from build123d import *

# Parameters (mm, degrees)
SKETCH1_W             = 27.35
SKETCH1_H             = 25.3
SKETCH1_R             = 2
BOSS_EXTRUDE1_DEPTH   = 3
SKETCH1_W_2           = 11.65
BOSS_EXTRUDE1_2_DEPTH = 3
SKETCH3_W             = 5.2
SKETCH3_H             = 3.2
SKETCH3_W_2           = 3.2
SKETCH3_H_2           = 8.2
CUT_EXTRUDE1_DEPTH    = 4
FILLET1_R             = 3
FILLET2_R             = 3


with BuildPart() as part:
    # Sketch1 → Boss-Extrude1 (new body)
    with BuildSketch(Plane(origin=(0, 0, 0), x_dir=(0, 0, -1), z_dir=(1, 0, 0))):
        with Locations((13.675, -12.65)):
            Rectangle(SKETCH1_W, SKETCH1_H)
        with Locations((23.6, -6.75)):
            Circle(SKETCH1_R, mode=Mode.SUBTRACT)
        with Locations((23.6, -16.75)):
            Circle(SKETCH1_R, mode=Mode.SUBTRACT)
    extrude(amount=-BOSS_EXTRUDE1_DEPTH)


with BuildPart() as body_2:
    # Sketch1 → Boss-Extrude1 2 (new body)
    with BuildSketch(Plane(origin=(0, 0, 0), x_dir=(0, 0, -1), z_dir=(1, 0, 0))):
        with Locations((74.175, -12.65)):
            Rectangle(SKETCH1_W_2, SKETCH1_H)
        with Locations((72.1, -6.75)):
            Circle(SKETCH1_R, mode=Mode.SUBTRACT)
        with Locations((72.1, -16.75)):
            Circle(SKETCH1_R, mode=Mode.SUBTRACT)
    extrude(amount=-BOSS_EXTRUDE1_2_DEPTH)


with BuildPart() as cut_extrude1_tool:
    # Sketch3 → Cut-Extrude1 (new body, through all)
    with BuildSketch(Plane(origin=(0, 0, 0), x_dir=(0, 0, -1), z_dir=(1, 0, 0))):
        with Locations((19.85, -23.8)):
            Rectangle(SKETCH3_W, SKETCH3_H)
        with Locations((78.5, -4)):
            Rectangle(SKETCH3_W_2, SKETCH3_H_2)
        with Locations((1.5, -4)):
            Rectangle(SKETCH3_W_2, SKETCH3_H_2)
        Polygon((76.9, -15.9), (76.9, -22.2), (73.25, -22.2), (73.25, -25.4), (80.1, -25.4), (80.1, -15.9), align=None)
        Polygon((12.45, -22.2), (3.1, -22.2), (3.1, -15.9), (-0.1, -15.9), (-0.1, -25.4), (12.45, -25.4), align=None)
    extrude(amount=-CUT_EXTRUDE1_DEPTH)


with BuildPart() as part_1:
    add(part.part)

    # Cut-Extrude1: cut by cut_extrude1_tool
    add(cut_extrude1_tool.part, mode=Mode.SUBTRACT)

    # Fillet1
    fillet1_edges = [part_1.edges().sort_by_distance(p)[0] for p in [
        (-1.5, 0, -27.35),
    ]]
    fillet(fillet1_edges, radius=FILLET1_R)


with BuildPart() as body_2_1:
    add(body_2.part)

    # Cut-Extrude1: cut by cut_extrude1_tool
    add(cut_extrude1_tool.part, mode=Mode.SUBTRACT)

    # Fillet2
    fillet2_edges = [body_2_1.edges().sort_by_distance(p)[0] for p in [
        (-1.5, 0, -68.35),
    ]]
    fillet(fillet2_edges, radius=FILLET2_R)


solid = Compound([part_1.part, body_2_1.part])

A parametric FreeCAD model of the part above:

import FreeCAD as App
import Part
import Sketcher

V = App.Vector
Q = App.Units.Quantity


def edges_at(feature, points):
    """Names of the edges that pass closest to the given points."""
    edges = feature.Shape.Edges
    near = lambda p: min(range(len(edges)), key=lambda i: edges[i].distToShape(Part.Vertex(*p))[0])
    return sorted({f"Edge{near(p) + 1}" for p in points})

doc = App.newDocument("Part")
body = doc.addObject("PartDesign::Body", "Body")

# Sketch on YZ plane
sketch1 = body.newObject("Sketcher::SketchObject", "Sketch")
sketch1.AttachmentSupport = (doc.getObject("YZ_Plane"), [""])
sketch1.MapMode = "FlatFace"
sketch1.addGeometry([
    Part.LineSegment(V(0, 0, 0), V(-25.3, 0, 0)),  # 0
    Part.LineSegment(V(-25.3, 0, 0), V(-25.3, -27.35, 0)),  # 1
    Part.LineSegment(V(-25.3, -27.35, 0), V(0, -27.35, 0)),  # 2
    Part.LineSegment(V(0, -27.35, 0), V(0, 0, 0)),  # 3
    Part.Circle(V(-16.75, -23.6, 0), V(0, 0, 1), 2),  # 4
    Part.Circle(V(-6.75, -23.6, 0), V(0, 0, 1), 2),  # 5
], False)
sketch1.addConstraint([
    Sketcher.Constraint("Coincident", 0, 2, 1, 1),
    Sketcher.Constraint("Coincident", 1, 2, 2, 1),
    Sketcher.Constraint("Coincident", 2, 2, 3, 1),
    Sketcher.Constraint("Coincident", 3, 2, 0, 1),
    Sketcher.Constraint("Horizontal", 0),
    Sketcher.Constraint("Vertical", 1),
    Sketcher.Constraint("Horizontal", 2),
    Sketcher.Constraint("Vertical", 3),
    Sketcher.Constraint("Coincident", 3, 2, -1, 1),
    Sketcher.Constraint("Equal", 4, 5),
    Sketcher.Constraint("Horizontal", 4, 3, 5, 3),
    Sketcher.Constraint("Diameter", 4, Q("4 mm")),
    Sketcher.Constraint("DistanceX", 0, 2, 0, 1, Q("25.3 mm")),
    Sketcher.Constraint("DistanceX", 4, 3, 5, 3, Q("10 mm")),
    Sketcher.Constraint("DistanceY", 1, 2, 1, 1, Q("27.35 mm")),
    Sketcher.Constraint("DistanceY", 4, 3, -1, 1, Q("23.6 mm")),
    Sketcher.Constraint("DistanceX", 4, 3, -1, 1, Q("16.75 mm")),
])
pad1 = body.newObject("PartDesign::Pad", "Pad")
pad1.Profile = sketch1
pad1.Length = 3
pad1.Reversed = True
body2 = doc.addObject("PartDesign::Body", "Body001")

# Sketch on YZ plane
sketch2 = body2.newObject("Sketcher::SketchObject", "Sketch001")
sketch2.AttachmentSupport = (doc.getObject("YZ_Plane001"), [""])
sketch2.MapMode = "FlatFace"
sketch2.addGeometry([
    Part.LineSegment(V(0, -68.35, 0), V(-25.3, -68.35, 0)),  # 0
    Part.LineSegment(V(-25.3, -68.35, 0), V(-25.3, -80, 0)),  # 1
    Part.LineSegment(V(-25.3, -80, 0), V(0, -80, 0)),  # 2
    Part.LineSegment(V(0, -80, 0), V(0, -68.35, 0)),  # 3
    Part.Circle(V(-16.75, -72.1, 0), V(0, 0, 1), 2),  # 4
    Part.Circle(V(-6.75, -72.1, 0), V(0, 0, 1), 2),  # 5
], False)
sketch2.addConstraint([
    Sketcher.Constraint("Coincident", 0, 2, 1, 1),
    Sketcher.Constraint("Coincident", 1, 2, 2, 1),
    Sketcher.Constraint("Coincident", 2, 2, 3, 1),
    Sketcher.Constraint("Coincident", 3, 2, 0, 1),
    Sketcher.Constraint("Horizontal", 0),
    Sketcher.Constraint("Vertical", 1),
    Sketcher.Constraint("Horizontal", 2),
    Sketcher.Constraint("Vertical", 3),
    Sketcher.Constraint("Equal", 4, 5),
    Sketcher.Constraint("PointOnObject", 2, 2, -2),
    Sketcher.Constraint("Horizontal", 4, 3, 5, 3),
    Sketcher.Constraint("Diameter", 4, Q("4 mm")),
    Sketcher.Constraint("DistanceX", 0, 2, 0, 1, Q("25.3 mm")),
    Sketcher.Constraint("DistanceY", 1, 2, -1, 1, Q("80 mm")),
    Sketcher.Constraint("DistanceX", 4, 3, 5, 3, Q("10 mm")),
    Sketcher.Constraint("DistanceY", 1, 2, 1, 1, Q("11.65 mm")),
    Sketcher.Constraint("DistanceY", 4, 3, -1, 1, Q("72.1 mm")),
    Sketcher.Constraint("DistanceX", 4, 3, -1, 1, Q("16.75 mm")),
])
pad2 = body2.newObject("PartDesign::Pad", "Pad001")
pad2.Profile = sketch2
pad2.Length = 3
pad2.Reversed = True
body3 = doc.addObject("PartDesign::Body", "Body002")
body3.AllowCompound = True

# Sketch on YZ plane
sketch3 = body3.newObject("Sketcher::SketchObject", "Sketch002")
sketch3.AttachmentSupport = (doc.getObject("YZ_Plane002"), [""])
sketch3.MapMode = "FlatFace"
sketch3.addGeometry([
    Part.LineSegment(V(-22.2, -17.25, 0), V(-25.4, -17.25, 0)),  # 0
    Part.LineSegment(V(-25.4, -17.25, 0), V(-25.4, -22.45, 0)),  # 1
    Part.LineSegment(V(-25.4, -22.45, 0), V(-22.2, -22.45, 0)),  # 2
    Part.LineSegment(V(-22.2, -22.45, 0), V(-22.2, -17.25, 0)),  # 3
    Part.LineSegment(V(0.1, -76.9, 0), V(-8.1, -76.9, 0)),  # 4
    Part.LineSegment(V(-8.1, -76.9, 0), V(-8.1, -80.1, 0)),  # 5
    Part.LineSegment(V(-8.1, -80.1, 0), V(0.1, -80.1, 0)),  # 6
    Part.LineSegment(V(0.1, -80.1, 0), V(0.1, -76.9, 0)),  # 7
    Part.LineSegment(V(0.1, 0.1, 0), V(-8.1, 0.1, 0)),  # 8
    Part.LineSegment(V(-8.1, 0.1, 0), V(-8.1, -3.1, 0)),  # 9
    Part.LineSegment(V(-8.1, -3.1, 0), V(0.1, -3.1, 0)),  # 10
    Part.LineSegment(V(0.1, -3.1, 0), V(0.1, 0.1, 0)),  # 11
    Part.LineSegment(V(-15.9, -76.9, 0), V(-22.2, -76.9, 0)),  # 12
    Part.LineSegment(V(-22.2, -76.9, 0), V(-22.2, -73.25, 0)),  # 13
    Part.LineSegment(V(-22.2, -73.25, 0), V(-25.4, -73.25, 0)),  # 14
    Part.LineSegment(V(-25.4, -73.25, 0), V(-25.4, -80.1, 0)),  # 15
    Part.LineSegment(V(-25.4, -80.1, 0), V(-15.9, -80.1, 0)),  # 16
    Part.LineSegment(V(-15.9, -80.1, 0), V(-15.9, -76.9, 0)),  # 17
    Part.LineSegment(V(-22.2, -12.45, 0), V(-22.2, -3.1, 0)),  # 18
    Part.LineSegment(V(-22.2, -3.1, 0), V(-15.9, -3.1, 0)),  # 19
    Part.LineSegment(V(-15.9, -3.1, 0), V(-15.9, 0.1, 0)),  # 20
    Part.LineSegment(V(-15.9, 0.1, 0), V(-25.4, 0.1, 0)),  # 21
    Part.LineSegment(V(-25.4, 0.1, 0), V(-25.4, -12.45, 0)),  # 22
    Part.LineSegment(V(-25.4, -12.45, 0), V(-22.2, -12.45, 0)),  # 23
], False)
sketch3.addConstraint([
    Sketcher.Constraint("Coincident", 0, 2, 1, 1),
    Sketcher.Constraint("Coincident", 1, 2, 2, 1),
    Sketcher.Constraint("Coincident", 2, 2, 3, 1),
    Sketcher.Constraint("Coincident", 3, 2, 0, 1),
    Sketcher.Constraint("Coincident", 4, 2, 5, 1),
    Sketcher.Constraint("Coincident", 5, 2, 6, 1),
    Sketcher.Constraint("Coincident", 6, 2, 7, 1),
    Sketcher.Constraint("Coincident", 7, 2, 4, 1),
    Sketcher.Constraint("Coincident", 8, 2, 9, 1),
    Sketcher.Constraint("Coincident", 9, 2, 10, 1),
    Sketcher.Constraint("Coincident", 10, 2, 11, 1),
    Sketcher.Constraint("Coincident", 11, 2, 8, 1),
    Sketcher.Constraint("Coincident", 12, 2, 13, 1),
    Sketcher.Constraint("Coincident", 13, 2, 14, 1),
    Sketcher.Constraint("Coincident", 14, 2, 15, 1),
    Sketcher.Constraint("Coincident", 15, 2, 16, 1),
    Sketcher.Constraint("Coincident", 16, 2, 17, 1),
    Sketcher.Constraint("Coincident", 17, 2, 12, 1),
    Sketcher.Constraint("Coincident", 18, 2, 19, 1),
    Sketcher.Constraint("Coincident", 19, 2, 20, 1),
    Sketcher.Constraint("Coincident", 20, 2, 21, 1),
    Sketcher.Constraint("Coincident", 21, 2, 22, 1),
    Sketcher.Constraint("Coincident", 22, 2, 23, 1),
    Sketcher.Constraint("Coincident", 23, 2, 18, 1),
    Sketcher.Constraint("Horizontal", 0),
    Sketcher.Constraint("Vertical", 1),
    Sketcher.Constraint("Horizontal", 2),
    Sketcher.Constraint("Vertical", 3),
    Sketcher.Constraint("Horizontal", 4),
    Sketcher.Constraint("Vertical", 5),
    Sketcher.Constraint("Horizontal", 6),
    Sketcher.Constraint("Vertical", 7),
    Sketcher.Constraint("Horizontal", 8),
    Sketcher.Constraint("Vertical", 9),
    Sketcher.Constraint("Horizontal", 10),
    Sketcher.Constraint("Vertical", 11),
    Sketcher.Constraint("Horizontal", 12),
    Sketcher.Constraint("Vertical", 13),
    Sketcher.Constraint("Horizontal", 14),
    Sketcher.Constraint("Vertical", 15),
    Sketcher.Constraint("Horizontal", 16),
    Sketcher.Constraint("Vertical", 17),
    Sketcher.Constraint("Vertical", 18),
    Sketcher.Constraint("Horizontal", 19),
    Sketcher.Constraint("Vertical", 20),
    Sketcher.Constraint("Horizontal", 21),
    Sketcher.Constraint("Vertical", 22),
    Sketcher.Constraint("Horizontal", 23),
    Sketcher.Constraint("Horizontal", 7, 2, 12, 2),
    Sketcher.Constraint("Horizontal", 6, 2, 15, 2),
    Sketcher.Constraint("Horizontal", 10, 2, 18, 2),
    Sketcher.Constraint("Horizontal", 11, 2, 20, 2),
    Sketcher.Constraint("Vertical", 5, 2, 8, 2),
    Sketcher.Constraint("Vertical", 7, 2, 10, 2),
    Sketcher.Constraint("Vertical", 3, 2, 12, 2),
    Sketcher.Constraint("Vertical", 1, 2, 14, 2),
    Sketcher.Constraint("Vertical", 13, 2, 18, 2),
    Sketcher.Constraint("Vertical", 17, 2, 19, 2),
    Sketcher.Constraint("Vertical", 15, 2, 21, 2),
    Sketcher.Constraint("Equal", 23, 5),
    Sketcher.Constraint("Equal", 7, 9),
    Sketcher.Constraint("DistanceX", 0, 2, 0, 1, Q("3.2 mm")),
    Sketcher.Constraint("DistanceX", 4, 2, 4, 1, Q("8.2 mm")),
    Sketcher.Constraint("DistanceX", 12, 2, 12, 1, Q("6.3 mm")),
    Sketcher.Constraint("DistanceY", 1, 2, 1, 1, Q("5.2 mm")),
    Sketcher.Constraint("DistanceY", 4, 2, 8, 2, Q("77 mm")),
    Sketcher.Constraint("DistanceX", 19, 2, 10, 2, Q("16 mm")),
    Sketcher.Constraint("DistanceY", 1, 2, 22, 2, Q("10 mm")),
    Sketcher.Constraint("DistanceY", 13, 1, 13, 2, Q("3.65 mm")),
    Sketcher.Constraint("DistanceY", 18, 1, 18, 2, Q("9.35 mm")),
    Sketcher.Constraint("DistanceX", 0, 2, -1, 1, Q("25.4 mm")),
    Sketcher.Constraint("DistanceY", 4, 2, -1, 1, Q("76.9 mm")),
])
pad3 = body3.newObject("PartDesign::Pad", "Pad002")
pad3.Profile = sketch3
pad3.Length = 4
pad3.Reversed = True
doc.recompute()

body4 = doc.addObject("PartDesign::Body", "Body003")
body4.BaseFeature = body3
boolean = body.newObject("PartDesign::Boolean", "Boolean")
boolean.Type = "Cut"
boolean.addObjects([body4])
doc.recompute()

fillet = body.newObject("PartDesign::Fillet", "Fillet")
fillet.Base = (boolean, edges_at(boolean, [(-1.5, 0, -27.35)]))
fillet.Radius = 3
doc.recompute()

boolean2 = body2.newObject("PartDesign::Boolean", "Boolean001")
boolean2.Type = "Cut"
boolean2.addObjects([body3])
doc.recompute()

fillet2 = body2.newObject("PartDesign::Fillet", "Fillet001")
fillet2.Base = (boolean2, edges_at(boolean2, [(-1.5, 0, -68.35)]))
fillet2.Radius = 3

doc.recompute()
